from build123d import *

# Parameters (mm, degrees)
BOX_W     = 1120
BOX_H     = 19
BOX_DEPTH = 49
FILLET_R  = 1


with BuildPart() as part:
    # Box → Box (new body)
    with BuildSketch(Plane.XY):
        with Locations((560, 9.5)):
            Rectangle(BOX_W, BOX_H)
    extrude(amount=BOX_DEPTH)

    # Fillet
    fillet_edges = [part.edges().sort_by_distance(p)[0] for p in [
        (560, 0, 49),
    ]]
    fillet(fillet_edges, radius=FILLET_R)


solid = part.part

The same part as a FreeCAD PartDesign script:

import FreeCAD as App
import Part
import Sketcher

V = App.Vector


def edges_at(feature, points):
    """Names of the edges that pass closest to the given points."""
    edges = feature.Shape.Edges
    near = lambda p: min(range(len(edges)), key=lambda i: edges[i].distToShape(Part.Vertex(*p))[0])
    return sorted({f"Edge{near(p) + 1}" for p in points})

doc = App.newDocument("Part")
body = doc.addObject("PartDesign::Body", "Body")

sketch1 = body.newObject("Sketcher::SketchObject", "Sketch")
sketch1.AttachmentSupport = (doc.getObject("XY_Plane"), [""])
sketch1.MapMode = "FlatFace"
sketch1.addGeometry(Part.LineSegment(V(0, 19, 0), V(0, 0, 0)), False)
sketch1.addGeometry(Part.LineSegment(V(0, 0, 0), V(1120, 0, 0)), False)
sketch1.addGeometry(Part.LineSegment(V(1120, 0, 0), V(1120, 19, 0)), False)
sketch1.addGeometry(Part.LineSegment(V(1120, 19, 0), V(0, 19, 0)), False)
sketch1.addConstraint(Sketcher.Constraint("Coincident", 0, 2, 1, 1))
sketch1.addConstraint(Sketcher.Constraint("Coincident", 1, 2, 2, 1))
sketch1.addConstraint(Sketcher.Constraint("Coincident", 2, 2, 3, 1))
sketch1.addConstraint(Sketcher.Constraint("Coincident", 3, 2, 0, 1))
sketch1.addConstraint(Sketcher.Constraint("Vertical", 0))
sketch1.addConstraint(Sketcher.Constraint("Horizontal", 1))
sketch1.addConstraint(Sketcher.Constraint("Vertical", 2))
sketch1.addConstraint(Sketcher.Constraint("Horizontal", 3))
sketch1.addConstraint(Sketcher.Constraint("Coincident", 0, 2, -1, 1))
sketch1.addConstraint(Sketcher.Constraint("DistanceX", 1, 1, 1, 2, 1120.0))
sketch1.addConstraint(Sketcher.Constraint("DistanceY", 0, 2, 0, 1, 19.0))
pad1 = body.newObject("PartDesign::Pad", "Pad")
pad1.Profile = sketch1
pad1.Length = 49
doc.recompute()

fillet = body.newObject("PartDesign::Fillet", "Fillet")
fillet.Base = (pad1, edges_at(pad1, [(560, 0, 49)]))
fillet.Radius = 1

doc.recompute()
